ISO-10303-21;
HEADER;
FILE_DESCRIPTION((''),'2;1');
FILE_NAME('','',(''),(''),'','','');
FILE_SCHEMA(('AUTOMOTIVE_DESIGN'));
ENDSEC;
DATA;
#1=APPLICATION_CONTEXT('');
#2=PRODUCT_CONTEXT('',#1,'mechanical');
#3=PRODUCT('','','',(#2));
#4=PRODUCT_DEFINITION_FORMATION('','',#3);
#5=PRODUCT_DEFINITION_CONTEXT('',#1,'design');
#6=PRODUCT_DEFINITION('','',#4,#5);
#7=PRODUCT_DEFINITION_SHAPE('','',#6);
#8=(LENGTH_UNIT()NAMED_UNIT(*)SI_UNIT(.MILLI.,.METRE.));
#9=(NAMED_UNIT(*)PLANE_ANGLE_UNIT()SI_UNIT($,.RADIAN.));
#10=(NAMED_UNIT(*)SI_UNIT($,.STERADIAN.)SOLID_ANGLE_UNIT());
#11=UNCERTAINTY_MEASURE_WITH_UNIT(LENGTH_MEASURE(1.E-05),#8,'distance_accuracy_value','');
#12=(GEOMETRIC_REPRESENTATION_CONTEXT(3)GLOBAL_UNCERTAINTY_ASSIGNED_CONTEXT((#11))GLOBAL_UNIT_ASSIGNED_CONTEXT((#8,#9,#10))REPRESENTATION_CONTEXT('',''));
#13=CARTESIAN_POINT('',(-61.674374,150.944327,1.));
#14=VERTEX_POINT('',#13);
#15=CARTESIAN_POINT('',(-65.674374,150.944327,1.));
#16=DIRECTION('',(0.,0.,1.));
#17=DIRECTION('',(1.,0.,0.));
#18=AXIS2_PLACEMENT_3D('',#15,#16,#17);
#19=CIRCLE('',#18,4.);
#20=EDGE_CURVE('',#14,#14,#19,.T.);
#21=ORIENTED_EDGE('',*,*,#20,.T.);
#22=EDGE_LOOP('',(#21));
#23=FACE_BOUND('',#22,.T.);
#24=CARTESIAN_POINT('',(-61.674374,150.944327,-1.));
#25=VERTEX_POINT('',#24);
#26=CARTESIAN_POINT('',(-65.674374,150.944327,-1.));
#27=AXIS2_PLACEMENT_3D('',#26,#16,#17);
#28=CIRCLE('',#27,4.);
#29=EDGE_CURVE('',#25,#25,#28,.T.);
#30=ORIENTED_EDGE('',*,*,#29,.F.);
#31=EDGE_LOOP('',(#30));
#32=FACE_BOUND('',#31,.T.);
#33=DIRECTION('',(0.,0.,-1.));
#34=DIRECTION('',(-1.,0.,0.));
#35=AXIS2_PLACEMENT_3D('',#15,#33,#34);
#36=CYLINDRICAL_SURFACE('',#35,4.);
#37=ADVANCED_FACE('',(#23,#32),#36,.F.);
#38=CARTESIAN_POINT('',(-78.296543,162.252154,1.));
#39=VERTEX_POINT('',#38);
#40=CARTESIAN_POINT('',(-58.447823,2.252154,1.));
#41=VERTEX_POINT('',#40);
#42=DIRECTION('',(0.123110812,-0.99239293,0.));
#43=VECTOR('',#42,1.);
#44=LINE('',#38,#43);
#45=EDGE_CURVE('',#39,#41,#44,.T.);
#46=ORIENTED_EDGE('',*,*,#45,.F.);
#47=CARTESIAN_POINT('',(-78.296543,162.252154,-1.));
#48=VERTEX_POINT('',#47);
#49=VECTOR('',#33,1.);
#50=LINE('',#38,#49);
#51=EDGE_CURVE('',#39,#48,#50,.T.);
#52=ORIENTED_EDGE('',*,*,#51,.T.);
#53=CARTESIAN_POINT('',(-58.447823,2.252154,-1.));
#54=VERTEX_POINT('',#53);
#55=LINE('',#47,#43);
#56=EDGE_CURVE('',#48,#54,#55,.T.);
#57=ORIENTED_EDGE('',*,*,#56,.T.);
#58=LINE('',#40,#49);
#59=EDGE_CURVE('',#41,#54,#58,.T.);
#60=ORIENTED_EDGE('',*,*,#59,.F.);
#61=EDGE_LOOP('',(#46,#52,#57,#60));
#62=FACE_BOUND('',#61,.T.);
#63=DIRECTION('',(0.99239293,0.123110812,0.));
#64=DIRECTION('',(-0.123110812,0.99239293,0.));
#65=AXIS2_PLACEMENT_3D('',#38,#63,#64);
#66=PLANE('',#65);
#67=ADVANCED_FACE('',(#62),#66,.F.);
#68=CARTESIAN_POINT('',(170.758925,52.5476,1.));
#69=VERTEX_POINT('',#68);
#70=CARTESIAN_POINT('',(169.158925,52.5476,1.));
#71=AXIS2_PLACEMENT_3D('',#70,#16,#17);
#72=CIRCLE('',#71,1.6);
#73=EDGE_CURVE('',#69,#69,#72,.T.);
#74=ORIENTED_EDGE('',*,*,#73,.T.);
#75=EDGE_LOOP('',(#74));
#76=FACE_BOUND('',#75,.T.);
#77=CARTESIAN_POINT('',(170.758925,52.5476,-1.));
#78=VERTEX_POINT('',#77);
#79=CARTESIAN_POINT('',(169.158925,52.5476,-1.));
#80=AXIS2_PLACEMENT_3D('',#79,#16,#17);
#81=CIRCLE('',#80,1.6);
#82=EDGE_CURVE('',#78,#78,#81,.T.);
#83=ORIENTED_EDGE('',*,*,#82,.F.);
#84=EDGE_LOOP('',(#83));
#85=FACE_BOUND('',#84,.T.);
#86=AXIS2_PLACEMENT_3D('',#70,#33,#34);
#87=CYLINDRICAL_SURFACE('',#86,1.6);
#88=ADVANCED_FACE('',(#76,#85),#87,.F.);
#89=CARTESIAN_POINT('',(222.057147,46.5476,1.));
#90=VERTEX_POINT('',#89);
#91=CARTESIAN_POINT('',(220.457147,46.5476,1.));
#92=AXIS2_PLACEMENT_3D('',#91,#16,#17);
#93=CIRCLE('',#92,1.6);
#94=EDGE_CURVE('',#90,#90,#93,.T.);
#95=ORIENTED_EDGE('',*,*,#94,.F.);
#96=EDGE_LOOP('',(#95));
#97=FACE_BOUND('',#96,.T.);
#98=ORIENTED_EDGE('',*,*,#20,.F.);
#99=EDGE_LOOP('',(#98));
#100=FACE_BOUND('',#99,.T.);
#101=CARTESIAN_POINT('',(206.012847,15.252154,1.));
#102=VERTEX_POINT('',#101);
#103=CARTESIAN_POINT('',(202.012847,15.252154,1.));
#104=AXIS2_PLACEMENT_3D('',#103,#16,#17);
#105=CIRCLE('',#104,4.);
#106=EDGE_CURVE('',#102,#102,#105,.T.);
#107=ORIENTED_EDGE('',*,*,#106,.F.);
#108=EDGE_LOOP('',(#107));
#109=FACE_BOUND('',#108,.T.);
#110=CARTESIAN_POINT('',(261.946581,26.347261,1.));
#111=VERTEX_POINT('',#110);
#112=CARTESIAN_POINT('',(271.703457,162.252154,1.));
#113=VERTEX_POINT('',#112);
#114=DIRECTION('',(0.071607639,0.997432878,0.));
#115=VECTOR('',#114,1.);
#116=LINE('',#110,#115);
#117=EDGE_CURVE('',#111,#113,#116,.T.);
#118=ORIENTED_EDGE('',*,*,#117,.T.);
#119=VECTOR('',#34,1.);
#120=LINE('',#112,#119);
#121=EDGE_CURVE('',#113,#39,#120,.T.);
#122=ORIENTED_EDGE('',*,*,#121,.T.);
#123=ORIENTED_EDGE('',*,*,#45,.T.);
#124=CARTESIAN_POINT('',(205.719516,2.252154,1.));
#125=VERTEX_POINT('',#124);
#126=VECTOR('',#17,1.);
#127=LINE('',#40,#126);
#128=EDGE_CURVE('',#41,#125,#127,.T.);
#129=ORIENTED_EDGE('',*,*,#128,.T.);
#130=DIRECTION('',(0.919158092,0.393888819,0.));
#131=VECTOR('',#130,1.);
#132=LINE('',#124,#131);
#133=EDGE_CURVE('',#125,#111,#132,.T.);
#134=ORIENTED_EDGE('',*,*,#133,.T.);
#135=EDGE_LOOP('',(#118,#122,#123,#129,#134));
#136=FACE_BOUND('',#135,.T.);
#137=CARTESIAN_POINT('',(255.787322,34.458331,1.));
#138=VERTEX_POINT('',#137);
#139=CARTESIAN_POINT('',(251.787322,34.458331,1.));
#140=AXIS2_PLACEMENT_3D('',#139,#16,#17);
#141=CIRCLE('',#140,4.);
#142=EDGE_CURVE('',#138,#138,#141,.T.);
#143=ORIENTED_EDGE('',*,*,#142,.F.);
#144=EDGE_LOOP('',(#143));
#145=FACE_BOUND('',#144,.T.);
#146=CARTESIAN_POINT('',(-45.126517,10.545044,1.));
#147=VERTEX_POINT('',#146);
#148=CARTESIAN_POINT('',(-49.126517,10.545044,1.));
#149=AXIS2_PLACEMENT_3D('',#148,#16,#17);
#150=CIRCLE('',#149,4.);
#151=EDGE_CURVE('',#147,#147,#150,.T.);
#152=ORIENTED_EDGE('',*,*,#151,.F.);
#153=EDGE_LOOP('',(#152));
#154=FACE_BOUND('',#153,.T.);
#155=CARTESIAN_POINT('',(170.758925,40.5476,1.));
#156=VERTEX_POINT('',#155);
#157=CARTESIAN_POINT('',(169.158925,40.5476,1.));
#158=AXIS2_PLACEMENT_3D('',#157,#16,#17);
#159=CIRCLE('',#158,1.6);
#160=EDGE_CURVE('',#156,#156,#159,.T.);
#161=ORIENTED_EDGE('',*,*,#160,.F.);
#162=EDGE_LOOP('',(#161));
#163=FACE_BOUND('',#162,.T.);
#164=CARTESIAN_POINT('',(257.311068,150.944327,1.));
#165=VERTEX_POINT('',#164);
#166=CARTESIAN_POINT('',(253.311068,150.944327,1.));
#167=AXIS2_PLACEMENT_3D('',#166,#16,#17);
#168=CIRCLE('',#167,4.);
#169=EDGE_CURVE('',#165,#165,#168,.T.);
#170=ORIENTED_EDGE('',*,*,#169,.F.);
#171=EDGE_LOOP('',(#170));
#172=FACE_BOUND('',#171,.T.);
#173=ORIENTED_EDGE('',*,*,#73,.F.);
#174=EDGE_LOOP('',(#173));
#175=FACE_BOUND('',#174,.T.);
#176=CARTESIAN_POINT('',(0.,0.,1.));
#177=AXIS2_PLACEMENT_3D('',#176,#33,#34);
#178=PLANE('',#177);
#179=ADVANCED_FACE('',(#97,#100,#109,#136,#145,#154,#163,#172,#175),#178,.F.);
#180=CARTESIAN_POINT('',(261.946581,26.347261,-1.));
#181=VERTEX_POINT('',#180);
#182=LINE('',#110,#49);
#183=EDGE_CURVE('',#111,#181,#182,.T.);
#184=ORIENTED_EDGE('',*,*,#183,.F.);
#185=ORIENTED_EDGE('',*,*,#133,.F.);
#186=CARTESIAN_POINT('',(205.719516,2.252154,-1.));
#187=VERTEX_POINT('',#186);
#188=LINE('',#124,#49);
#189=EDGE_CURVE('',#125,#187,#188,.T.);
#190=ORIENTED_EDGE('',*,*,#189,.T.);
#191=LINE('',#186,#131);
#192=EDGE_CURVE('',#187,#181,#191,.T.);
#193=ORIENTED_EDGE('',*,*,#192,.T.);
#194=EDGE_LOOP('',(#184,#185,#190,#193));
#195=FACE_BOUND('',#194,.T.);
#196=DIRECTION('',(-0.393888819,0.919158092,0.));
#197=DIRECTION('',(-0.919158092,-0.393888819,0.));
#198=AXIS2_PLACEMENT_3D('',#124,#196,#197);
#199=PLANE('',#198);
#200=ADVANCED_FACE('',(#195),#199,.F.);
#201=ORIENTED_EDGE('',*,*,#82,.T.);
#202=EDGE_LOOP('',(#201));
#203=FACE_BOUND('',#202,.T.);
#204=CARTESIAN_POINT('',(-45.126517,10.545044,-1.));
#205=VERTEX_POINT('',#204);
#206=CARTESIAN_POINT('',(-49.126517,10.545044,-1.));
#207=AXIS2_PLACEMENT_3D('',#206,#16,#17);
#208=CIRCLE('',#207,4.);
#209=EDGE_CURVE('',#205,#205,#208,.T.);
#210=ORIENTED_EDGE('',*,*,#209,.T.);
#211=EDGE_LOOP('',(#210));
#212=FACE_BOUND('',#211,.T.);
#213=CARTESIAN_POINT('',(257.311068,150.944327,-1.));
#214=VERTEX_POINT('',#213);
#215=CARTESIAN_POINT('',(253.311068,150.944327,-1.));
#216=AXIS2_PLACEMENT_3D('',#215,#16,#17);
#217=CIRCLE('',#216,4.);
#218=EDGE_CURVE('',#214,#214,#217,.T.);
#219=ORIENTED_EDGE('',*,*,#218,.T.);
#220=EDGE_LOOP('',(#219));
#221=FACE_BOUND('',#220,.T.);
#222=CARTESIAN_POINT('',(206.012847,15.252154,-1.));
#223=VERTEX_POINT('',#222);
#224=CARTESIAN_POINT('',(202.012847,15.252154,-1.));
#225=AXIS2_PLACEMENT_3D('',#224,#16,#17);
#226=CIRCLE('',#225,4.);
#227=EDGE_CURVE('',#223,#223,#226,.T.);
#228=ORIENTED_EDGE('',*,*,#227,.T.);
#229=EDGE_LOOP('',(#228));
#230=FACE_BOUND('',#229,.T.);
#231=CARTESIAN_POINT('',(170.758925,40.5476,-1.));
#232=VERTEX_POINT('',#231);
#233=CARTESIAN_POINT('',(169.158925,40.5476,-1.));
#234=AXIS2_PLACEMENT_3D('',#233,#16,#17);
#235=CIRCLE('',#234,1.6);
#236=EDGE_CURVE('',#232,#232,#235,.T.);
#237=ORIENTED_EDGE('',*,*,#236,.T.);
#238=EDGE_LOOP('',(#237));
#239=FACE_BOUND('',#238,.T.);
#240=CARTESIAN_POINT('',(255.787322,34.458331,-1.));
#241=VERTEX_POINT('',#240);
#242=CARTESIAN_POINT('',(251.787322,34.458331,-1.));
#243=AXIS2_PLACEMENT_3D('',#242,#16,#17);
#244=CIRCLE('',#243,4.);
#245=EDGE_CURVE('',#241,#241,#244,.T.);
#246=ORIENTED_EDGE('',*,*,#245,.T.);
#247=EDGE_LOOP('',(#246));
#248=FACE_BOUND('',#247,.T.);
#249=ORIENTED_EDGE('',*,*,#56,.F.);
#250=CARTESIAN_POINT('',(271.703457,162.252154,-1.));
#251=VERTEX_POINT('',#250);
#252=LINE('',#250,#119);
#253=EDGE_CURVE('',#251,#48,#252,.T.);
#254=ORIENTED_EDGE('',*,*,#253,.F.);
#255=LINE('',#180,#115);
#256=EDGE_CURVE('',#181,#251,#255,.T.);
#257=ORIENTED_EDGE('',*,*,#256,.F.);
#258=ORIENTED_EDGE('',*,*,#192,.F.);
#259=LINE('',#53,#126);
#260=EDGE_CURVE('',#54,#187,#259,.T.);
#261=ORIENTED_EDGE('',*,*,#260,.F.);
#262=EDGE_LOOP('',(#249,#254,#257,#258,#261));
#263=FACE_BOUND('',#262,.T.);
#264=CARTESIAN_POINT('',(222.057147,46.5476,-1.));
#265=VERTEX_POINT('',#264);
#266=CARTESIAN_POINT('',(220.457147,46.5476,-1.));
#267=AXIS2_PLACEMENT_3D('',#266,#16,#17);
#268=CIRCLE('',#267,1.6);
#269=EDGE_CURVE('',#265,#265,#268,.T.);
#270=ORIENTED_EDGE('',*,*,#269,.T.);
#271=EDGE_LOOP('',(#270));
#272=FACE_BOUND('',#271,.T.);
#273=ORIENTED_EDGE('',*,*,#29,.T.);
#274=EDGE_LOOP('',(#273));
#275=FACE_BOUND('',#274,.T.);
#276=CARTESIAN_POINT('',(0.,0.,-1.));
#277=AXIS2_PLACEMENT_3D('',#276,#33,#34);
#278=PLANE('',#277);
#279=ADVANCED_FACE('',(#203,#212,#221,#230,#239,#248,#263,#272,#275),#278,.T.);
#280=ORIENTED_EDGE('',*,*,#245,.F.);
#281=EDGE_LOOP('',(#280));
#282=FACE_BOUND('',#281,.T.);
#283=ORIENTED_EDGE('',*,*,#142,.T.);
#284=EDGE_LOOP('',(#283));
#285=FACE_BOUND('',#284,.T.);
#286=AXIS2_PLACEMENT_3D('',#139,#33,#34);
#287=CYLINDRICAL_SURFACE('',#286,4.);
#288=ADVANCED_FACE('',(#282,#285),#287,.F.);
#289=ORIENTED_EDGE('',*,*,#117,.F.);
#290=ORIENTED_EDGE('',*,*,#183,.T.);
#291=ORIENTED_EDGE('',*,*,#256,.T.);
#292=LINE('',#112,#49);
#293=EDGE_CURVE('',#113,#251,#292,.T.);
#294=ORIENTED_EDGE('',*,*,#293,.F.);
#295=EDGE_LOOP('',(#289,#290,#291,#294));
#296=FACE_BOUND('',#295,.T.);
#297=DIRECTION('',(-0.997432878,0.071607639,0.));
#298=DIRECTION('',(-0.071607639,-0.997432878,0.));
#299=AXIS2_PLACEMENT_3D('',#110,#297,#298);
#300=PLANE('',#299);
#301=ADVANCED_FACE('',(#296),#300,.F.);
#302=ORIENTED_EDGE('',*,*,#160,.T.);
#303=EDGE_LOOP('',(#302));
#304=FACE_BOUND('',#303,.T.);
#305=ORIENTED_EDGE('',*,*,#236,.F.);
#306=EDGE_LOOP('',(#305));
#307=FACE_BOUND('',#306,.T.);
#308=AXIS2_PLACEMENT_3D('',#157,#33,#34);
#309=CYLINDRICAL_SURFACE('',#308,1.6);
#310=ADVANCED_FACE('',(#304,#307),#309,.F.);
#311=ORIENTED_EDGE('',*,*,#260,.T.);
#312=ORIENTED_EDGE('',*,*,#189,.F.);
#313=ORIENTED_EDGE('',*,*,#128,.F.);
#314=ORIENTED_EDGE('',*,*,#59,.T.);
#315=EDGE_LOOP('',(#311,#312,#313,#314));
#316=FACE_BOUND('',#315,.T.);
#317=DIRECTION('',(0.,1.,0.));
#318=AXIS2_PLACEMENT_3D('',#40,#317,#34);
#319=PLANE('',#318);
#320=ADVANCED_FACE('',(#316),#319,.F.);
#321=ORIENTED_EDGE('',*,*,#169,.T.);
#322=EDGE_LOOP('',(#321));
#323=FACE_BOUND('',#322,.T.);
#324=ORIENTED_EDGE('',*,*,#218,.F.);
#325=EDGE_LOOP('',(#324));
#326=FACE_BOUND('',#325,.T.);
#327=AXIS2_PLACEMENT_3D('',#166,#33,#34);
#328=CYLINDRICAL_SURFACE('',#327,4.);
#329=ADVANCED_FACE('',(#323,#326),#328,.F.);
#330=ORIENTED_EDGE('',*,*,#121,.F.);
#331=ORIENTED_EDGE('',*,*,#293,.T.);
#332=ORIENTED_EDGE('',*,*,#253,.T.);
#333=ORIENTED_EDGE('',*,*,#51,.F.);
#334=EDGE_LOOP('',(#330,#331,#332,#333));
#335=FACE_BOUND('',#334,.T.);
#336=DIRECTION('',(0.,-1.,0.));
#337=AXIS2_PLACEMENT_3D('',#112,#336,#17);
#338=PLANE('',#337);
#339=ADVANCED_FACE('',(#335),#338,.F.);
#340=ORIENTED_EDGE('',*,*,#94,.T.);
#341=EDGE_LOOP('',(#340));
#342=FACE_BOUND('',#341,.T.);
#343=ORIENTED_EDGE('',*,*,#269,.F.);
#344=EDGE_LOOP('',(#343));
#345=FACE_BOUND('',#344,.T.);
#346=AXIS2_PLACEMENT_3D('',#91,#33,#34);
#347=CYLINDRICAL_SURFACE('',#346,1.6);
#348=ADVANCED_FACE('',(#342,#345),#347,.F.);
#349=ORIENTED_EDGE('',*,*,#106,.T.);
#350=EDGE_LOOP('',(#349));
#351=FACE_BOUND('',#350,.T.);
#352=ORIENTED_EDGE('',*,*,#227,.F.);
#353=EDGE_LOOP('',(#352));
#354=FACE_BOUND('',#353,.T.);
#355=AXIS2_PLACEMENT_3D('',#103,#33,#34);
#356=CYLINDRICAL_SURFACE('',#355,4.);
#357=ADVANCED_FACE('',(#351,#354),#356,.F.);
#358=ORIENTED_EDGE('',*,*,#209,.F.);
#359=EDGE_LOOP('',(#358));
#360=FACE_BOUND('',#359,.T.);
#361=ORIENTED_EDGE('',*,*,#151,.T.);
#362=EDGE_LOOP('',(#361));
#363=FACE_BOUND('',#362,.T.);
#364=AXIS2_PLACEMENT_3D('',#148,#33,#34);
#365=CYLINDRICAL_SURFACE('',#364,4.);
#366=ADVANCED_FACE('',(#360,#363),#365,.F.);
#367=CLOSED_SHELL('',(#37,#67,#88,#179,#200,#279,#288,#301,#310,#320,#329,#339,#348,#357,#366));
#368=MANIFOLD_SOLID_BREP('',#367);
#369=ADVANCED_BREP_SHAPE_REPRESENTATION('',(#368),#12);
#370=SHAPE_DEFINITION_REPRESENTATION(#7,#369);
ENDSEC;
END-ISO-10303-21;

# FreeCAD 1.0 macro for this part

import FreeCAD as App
import Part
import Sketcher
Q = App.Units.Quantity

doc = App.newDocument("Part")
body = doc.addObject("PartDesign::Body", "Body")

# Sketch on XY plane
sketch1 = doc.addObject("Sketcher::SketchObject", "Sketch")
body.addObject(sketch1)
sketch1.AttachmentSupport = (doc.XY_Plane, [""])
sketch1.MapMode = "FlatFace"
sketch1.addGeometry(Part.LineSegment(App.Vector(-58.4, 2.3, 0), App.Vector(205.7, 2.3, 0)), False)
sketch1.addGeometry(Part.LineSegment(App.Vector(205.7, 2.3, 0), App.Vector(261.9, 26.3, 0)), False)
sketch1.addGeometry(Part.LineSegment(App.Vector(261.9, 26.3, 0), App.Vector(271.7, 162.3, 0)), False)
sketch1.addGeometry(Part.LineSegment(App.Vector(271.7, 162.3, 0), App.Vector(-78.3, 162.3, 0)), False)
sketch1.addGeometry(Part.LineSegment(App.Vector(-78.3, 162.3, 0), App.Vector(-58.4, 2.3, 0)), False)
sketch1.addGeometry(Part.Circle(App.Vector(-49.1, 10.5, 0), App.Vector(0, 0, 1), 4), False)
sketch1.addGeometry(Part.Circle(App.Vector(169.2, 40.5, 0), App.Vector(0, 0, 1), 1.6), False)
sketch1.addGeometry(Part.Circle(App.Vector(202, 15.3, 0), App.Vector(0, 0, 1), 4), False)
sketch1.addGeometry(Part.Circle(App.Vector(251.8, 34.5, 0), App.Vector(0, 0, 1), 4), False)
sketch1.addGeometry(Part.Circle(App.Vector(169.2, 52.5, 0), App.Vector(0, 0, 1), 1.6), False)
sketch1.addGeometry(Part.Circle(App.Vector(220.5, 46.5, 0), App.Vector(0, 0, 1), 1.6), False)
sketch1.addGeometry(Part.Circle(App.Vector(-65.7, 150.9, 0), App.Vector(0, 0, 1), 4), False)
sketch1.addGeometry(Part.Circle(App.Vector(253.3, 150.9, 0), App.Vector(0, 0, 1), 4), False)
sketch1.addConstraint(Sketcher.Constraint("Coincident", 0, 2, 1, 1))
sketch1.addConstraint(Sketcher.Constraint("Coincident", 1, 2, 2, 1))
sketch1.addConstraint(Sketcher.Constraint("Coincident", 2, 2, 3, 1))
sketch1.addConstraint(Sketcher.Constraint("Coincident", 3, 2, 4, 1))
sketch1.addConstraint(Sketcher.Constraint("Coincident", 4, 2, 0, 1))
sketch1.addConstraint(Sketcher.Constraint("Horizontal", 0))
sketch1.addConstraint(Sketcher.Constraint("Horizontal", 3))
sketch1.addConstraint(Sketcher.Constraint("Equal", 5, 7))
sketch1.addConstraint(Sketcher.Constraint("Equal", 7, 8))
sketch1.addConstraint(Sketcher.Constraint("Equal", 6, 9))
sketch1.addConstraint(Sketcher.Constraint("Equal", 9, 10))
sketch1.addConstraint(Sketcher.Constraint("Equal", 8, 11))
sketch1.addConstraint(Sketcher.Constraint("Equal", 11, 12))
sketch1.addConstraint(Sketcher.Constraint("Horizontal", 11, 3, 12, 3))
sketch1.addConstraint(Sketcher.Constraint("Vertical", 6, 3, 9, 3))
sketch1.addConstraint(Sketcher.Constraint("Diameter", 5, Q("8 mm")))
sketch1.addConstraint(Sketcher.Constraint("Diameter", 6, Q("3.2 mm")))
sketch1.addConstraint(Sketcher.Constraint("DistanceX", 3, 2, 3, 1, Q("350 mm")))
sketch1.addConstraint(Sketcher.Constraint("DistanceY", 6, 3, 9, 3, Q("12 mm")))
sketch1.addConstraint(Sketcher.Constraint("DistanceY", 6, 3, 10, 3, Q("6 mm")))
sketch1.addConstraint(Sketcher.Constraint("DistanceY", 0, 2, 7, 3, Q("13 mm")))
sketch1.addConstraint(Sketcher.Constraint("DistanceY", 7, 3, 3, 2, Q("147 mm")))
sketch1.addConstraint(Sketcher.Constraint("DistanceX", 0, 1, 0, 2, Q("264.167339 mm")))
sketch1.addConstraint(Sketcher.Constraint("DistanceY", -1, 1, 6, 3, Q("40.5476 mm")))
sketch1.addConstraint(Sketcher.Constraint("DistanceX", 7, 3, 10, 3, Q("18.4443 mm")))
sketch1.addConstraint(Sketcher.Constraint("DistanceX", 11, 3, 9, 3, Q("234.833299 mm")))
sketch1.addConstraint(Sketcher.Constraint("Distance", 4, Q("161.226461 mm")))
sketch1.addConstraint(Sketcher.Constraint("DistanceY", -1, 1, 8, 3, Q("34.458331 mm")))
sketch1.addConstraint(Sketcher.Constraint("DistanceX", -1, 1, 12, 3, Q("253.311068 mm")))
sketch1.addConstraint(Sketcher.Constraint("DistanceX", -1, 1, 1, 2, Q("261.946581 mm")))
sketch1.addConstraint(Sketcher.Constraint("DistanceY", -1, 1, 1, 2, Q("26.347261 mm")))
sketch1.addConstraint(Sketcher.Constraint("DistanceX", 6, 3, 7, 3, Q("32.853921 mm")))
sketch1.addConstraint(Sketcher.Constraint("DistanceY", 5, 3, 7, 3, Q("4.70711 mm")))
sketch1.addConstraint(Sketcher.Constraint("DistanceX", 5, 3, 8, 3, Q("300.913839 mm")))
sketch1.addConstraint(Sketcher.Constraint("DistanceX", 10, 3, 12, 3, Q("32.853921 mm")))
sketch1.addConstraint(Sketcher.Constraint("DistanceX", 7, 3, 0, 2, Q("3.706669 mm")))
sketch1.addConstraint(Sketcher.Constraint("DistanceX", 8, 3, 1, 2, Q("10.159259 mm")))
sketch1.addConstraint(Sketcher.Constraint("Distance", 1, Q("61.172355 mm")))
sketch1.addConstraint(Sketcher.Constraint("DistanceY", -1, 1, 11, 3, Q("150.944327 mm")))
pad1 = doc.addObject("PartDesign::Pad", "Pad")
body.addObject(pad1)
pad1.Profile = sketch1
pad1.Length = 2
pad1.Midplane = True

doc.recompute()
